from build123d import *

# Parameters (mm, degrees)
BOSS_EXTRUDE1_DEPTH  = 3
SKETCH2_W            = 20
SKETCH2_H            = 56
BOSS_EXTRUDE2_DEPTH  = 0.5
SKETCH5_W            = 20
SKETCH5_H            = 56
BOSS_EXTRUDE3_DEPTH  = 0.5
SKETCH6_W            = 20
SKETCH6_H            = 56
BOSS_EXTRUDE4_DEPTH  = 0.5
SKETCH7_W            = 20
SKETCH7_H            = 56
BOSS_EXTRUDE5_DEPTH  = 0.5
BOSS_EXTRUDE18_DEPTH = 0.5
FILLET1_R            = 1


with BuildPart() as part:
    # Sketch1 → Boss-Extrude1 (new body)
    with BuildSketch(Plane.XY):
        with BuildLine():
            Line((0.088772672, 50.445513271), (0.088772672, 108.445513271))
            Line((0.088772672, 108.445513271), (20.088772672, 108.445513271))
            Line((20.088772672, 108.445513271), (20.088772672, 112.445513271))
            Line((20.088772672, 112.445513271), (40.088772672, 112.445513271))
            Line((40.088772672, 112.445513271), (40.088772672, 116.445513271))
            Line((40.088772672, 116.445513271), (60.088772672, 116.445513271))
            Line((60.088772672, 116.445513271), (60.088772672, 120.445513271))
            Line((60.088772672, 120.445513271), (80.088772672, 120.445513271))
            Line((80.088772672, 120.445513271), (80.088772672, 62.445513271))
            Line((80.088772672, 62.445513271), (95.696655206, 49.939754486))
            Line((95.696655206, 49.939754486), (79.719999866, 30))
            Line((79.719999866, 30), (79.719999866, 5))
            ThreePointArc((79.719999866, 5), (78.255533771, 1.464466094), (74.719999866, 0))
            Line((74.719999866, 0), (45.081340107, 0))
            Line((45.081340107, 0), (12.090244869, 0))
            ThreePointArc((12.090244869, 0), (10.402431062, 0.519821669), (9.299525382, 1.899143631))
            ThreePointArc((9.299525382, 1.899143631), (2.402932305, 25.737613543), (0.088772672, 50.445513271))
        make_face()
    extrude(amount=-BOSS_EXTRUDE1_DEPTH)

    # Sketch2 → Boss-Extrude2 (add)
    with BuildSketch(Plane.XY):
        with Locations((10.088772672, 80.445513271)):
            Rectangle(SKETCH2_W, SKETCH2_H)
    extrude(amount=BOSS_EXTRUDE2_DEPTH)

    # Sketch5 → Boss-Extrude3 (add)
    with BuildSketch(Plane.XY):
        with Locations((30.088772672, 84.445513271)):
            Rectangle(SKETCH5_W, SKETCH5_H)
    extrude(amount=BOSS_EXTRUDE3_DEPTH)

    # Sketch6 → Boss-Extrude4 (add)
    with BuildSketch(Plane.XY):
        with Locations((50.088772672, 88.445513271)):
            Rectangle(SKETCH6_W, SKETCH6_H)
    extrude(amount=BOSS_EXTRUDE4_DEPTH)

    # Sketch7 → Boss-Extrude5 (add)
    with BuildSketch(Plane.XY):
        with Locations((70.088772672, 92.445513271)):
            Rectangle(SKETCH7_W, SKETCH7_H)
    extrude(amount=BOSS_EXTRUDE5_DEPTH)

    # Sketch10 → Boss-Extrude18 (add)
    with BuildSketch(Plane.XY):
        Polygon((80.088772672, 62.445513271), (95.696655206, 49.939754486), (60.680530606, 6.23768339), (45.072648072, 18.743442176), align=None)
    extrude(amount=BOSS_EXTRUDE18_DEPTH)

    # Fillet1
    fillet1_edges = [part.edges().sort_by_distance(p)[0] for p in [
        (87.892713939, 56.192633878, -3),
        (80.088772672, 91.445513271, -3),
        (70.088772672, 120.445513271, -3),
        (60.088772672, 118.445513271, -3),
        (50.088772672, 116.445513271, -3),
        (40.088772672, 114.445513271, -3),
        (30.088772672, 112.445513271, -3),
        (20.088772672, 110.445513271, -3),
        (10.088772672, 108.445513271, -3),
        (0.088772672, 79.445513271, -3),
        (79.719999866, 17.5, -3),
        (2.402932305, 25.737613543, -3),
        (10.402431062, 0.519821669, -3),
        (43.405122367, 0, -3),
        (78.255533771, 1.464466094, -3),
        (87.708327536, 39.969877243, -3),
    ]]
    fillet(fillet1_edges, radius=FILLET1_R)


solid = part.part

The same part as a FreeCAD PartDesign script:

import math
import FreeCAD as App
import Part
import Sketcher
from FreeCAD import Vector


def edges_at(feature, points):
    """Names of the edges that pass closest to the given points."""
    edges = feature.Shape.Edges
    near = lambda p: min(range(len(edges)), key=lambda i: edges[i].distToShape(Part.Vertex(*p))[0])
    return sorted({f"Edge{near(p) + 1}" for p in points})

doc = App.newDocument("Part")
body = doc.addObject("PartDesign::Body", "Body")

sketch1 = body.newObject("Sketcher::SketchObject", "Sketch")
sketch1.AttachmentSupport = (doc.getObject("XY_Plane"), [""])
sketch1.MapMode = "FlatFace"
sketch1.addGeometry(Part.LineSegment(Vector(0.1, 108.4, 0), Vector(0.1, 50.4, 0)), False)
sketch1.addGeometry(Part.ArcOfCircle(Part.Circle(Vector(132.1, 50.3, 0), Vector(0, 0, 1), 132), math.radians(180), math.radians(202)), False)
sketch1.addGeometry(Part.ArcOfCircle(Part.Circle(Vector(12.1, 3, 0), Vector(0, 0, 1), 3), math.radians(-158), math.radians(-90)), False)
sketch1.addGeometry(Part.LineSegment(Vector(12.1, 0, 0), Vector(74.7, 0, 0)), False)
sketch1.addGeometry(Part.ArcOfCircle(Part.Circle(Vector(74.7, 5, 0), Vector(0, 0, 1), 5), math.radians(-90), math.radians(0)), False)
sketch1.addGeometry(Part.LineSegment(Vector(79.7, 5, 0), Vector(79.7, 30, 0)), False)
sketch1.addGeometry(Part.LineSegment(Vector(79.7, 30, 0), Vector(95.7, 49.9, 0)), False)
sketch1.addGeometry(Part.LineSegment(Vector(95.7, 49.9, 0), Vector(80.1, 62.4, 0)), False)
sketch1.addGeometry(Part.LineSegment(Vector(80.1, 62.4, 0), Vector(80.1, 120.4, 0)), False)
sketch1.addGeometry(Part.LineSegment(Vector(80.1, 120.4, 0), Vector(60.1, 120.4, 0)), False)
sketch1.addGeometry(Part.LineSegment(Vector(60.1, 120.4, 0), Vector(60.1, 116.4, 0)), False)
sketch1.addGeometry(Part.LineSegment(Vector(60.1, 116.4, 0), Vector(40.1, 116.4, 0)), False)
sketch1.addGeometry(Part.LineSegment(Vector(40.1, 116.4, 0), Vector(40.1, 112.4, 0)), False)
sketch1.addGeometry(Part.LineSegment(Vector(40.1, 112.4, 0), Vector(20.1, 112.4, 0)), False)
sketch1.addGeometry(Part.LineSegment(Vector(20.1, 112.4, 0), Vector(20.1, 108.4, 0)), False)
sketch1.addGeometry(Part.LineSegment(Vector(20.1, 108.4, 0), Vector(0.1, 108.4, 0)), False)
sketch1.addConstraint(Sketcher.Constraint("Coincident", 0, 2, 1, 1))
sketch1.addConstraint(Sketcher.Constraint("Tangent", 1, 2, 2, 1))
sketch1.addConstraint(Sketcher.Constraint("Tangent", 2, 2, 3, 1))
sketch1.addConstraint(Sketcher.Constraint("Tangent", 3, 2, 4, 1))
sketch1.addConstraint(Sketcher.Constraint("Tangent", 4, 2, 5, 1))
sketch1.addConstraint(Sketcher.Constraint("Coincident", 5, 2, 6, 1))
sketch1.addConstraint(Sketcher.Constraint("Coincident", 6, 2, 7, 1))
sketch1.addConstraint(Sketcher.Constraint("Coincident", 7, 2, 8, 1))
sketch1.addConstraint(Sketcher.Constraint("Coincident", 8, 2, 9, 1))
sketch1.addConstraint(Sketcher.Constraint("Coincident", 9, 2, 10, 1))
sketch1.addConstraint(Sketcher.Constraint("Coincident", 10, 2, 11, 1))
sketch1.addConstraint(Sketcher.Constraint("Coincident", 11, 2, 12, 1))
sketch1.addConstraint(Sketcher.Constraint("Coincident", 12, 2, 13, 1))
sketch1.addConstraint(Sketcher.Constraint("Coincident", 13, 2, 14, 1))
sketch1.addConstraint(Sketcher.Constraint("Coincident", 14, 2, 15, 1))
sketch1.addConstraint(Sketcher.Constraint("Coincident", 15, 2, 0, 1))
sketch1.addConstraint(Sketcher.Constraint("Vertical", 0))
sketch1.addConstraint(Sketcher.Constraint("Horizontal", 3))
sketch1.addConstraint(Sketcher.Constraint("Vertical", 5))
sketch1.addConstraint(Sketcher.Constraint("Vertical", 8))
sketch1.addConstraint(Sketcher.Constraint("Horizontal", 9))
sketch1.addConstraint(Sketcher.Constraint("Vertical", 10))
sketch1.addConstraint(Sketcher.Constraint("Horizontal", 11))
sketch1.addConstraint(Sketcher.Constraint("Vertical", 12))
sketch1.addConstraint(Sketcher.Constraint("Horizontal", 13))
sketch1.addConstraint(Sketcher.Constraint("Vertical", 14))
sketch1.addConstraint(Sketcher.Constraint("Horizontal", 15))
sketch1.addConstraint(Sketcher.Constraint("PointOnObject", 2, 2, -1))
sketch1.addConstraint(Sketcher.Constraint("Perpendicular", 6, 7))
sketch1.addConstraint(Sketcher.Constraint("Equal", 9, 11))
sketch1.addConstraint(Sketcher.Constraint("Equal", 11, 13))
sketch1.addConstraint(Sketcher.Constraint("Equal", 13, 15))
sketch1.addConstraint(Sketcher.Constraint("Equal", 0, 8))
sketch1.addConstraint(Sketcher.Constraint("Equal", 10, 12))
sketch1.addConstraint(Sketcher.Constraint("Equal", 12, 14))
sketch1.addConstraint(Sketcher.Constraint("Radius", 2, 3.0))
sketch1.addConstraint(Sketcher.Constraint("Radius", 4, 5.0))
sketch1.addConstraint(Sketcher.Constraint("DistanceX", 9, 2, 9, 1, 20.0))
sketch1.addConstraint(Sketcher.Constraint("DistanceY", 0, 2, 0, 1, 58.0))
sketch1.addConstraint(Sketcher.Constraint("DistanceY", 5, 1, 5, 2, 25.0))
sketch1.addConstraint(Sketcher.Constraint("DistanceY", 10, 2, 10, 1, 4.0))
sketch1.addConstraint(Sketcher.Constraint("Distance", 7, 20.0))
sketch1.addConstraint(Sketcher.Constraint("DistanceX", -1, 1, 4, 3, 74.72))
sketch1.addConstraint(Sketcher.Constraint("Radius", 1, 132.035047))
sketch1.addConstraint(Sketcher.Constraint("DistanceX", 3, 1, 3, 2, 62.629755))
sketch1.addConstraint(Sketcher.Constraint("DistanceX", 2, 3, 1, 3, 120.03354))
sketch1.addConstraint(Sketcher.Constraint("DistanceY", 1, 3, 0, 2, 0.095829))
pad1 = body.newObject("PartDesign::Pad", "Pad")
pad1.Profile = sketch1
pad1.Length = 3
pad1.Reversed = True

sketch2 = body.newObject("Sketcher::SketchObject", "Sketch001")
sketch2.AttachmentSupport = (doc.getObject("XY_Plane"), [""])
sketch2.MapMode = "FlatFace"
sketch2.addGeometry(Part.LineSegment(Vector(0, 108, 0), Vector(0, 52, 0)), False)
sketch2.addGeometry(Part.LineSegment(Vector(0, 52, 0), Vector(20, 52, 0)), False)
sketch2.addGeometry(Part.LineSegment(Vector(20, 52, 0), Vector(20, 108, 0)), False)
sketch2.addGeometry(Part.LineSegment(Vector(20, 108, 0), Vector(0, 108, 0)), False)
sketch2.addConstraint(Sketcher.Constraint("Coincident", 0, 2, 1, 1))
sketch2.addConstraint(Sketcher.Constraint("Coincident", 1, 2, 2, 1))
sketch2.addConstraint(Sketcher.Constraint("Coincident", 2, 2, 3, 1))
sketch2.addConstraint(Sketcher.Constraint("Coincident", 3, 2, 0, 1))
sketch2.addConstraint(Sketcher.Constraint("Vertical", 0))
sketch2.addConstraint(Sketcher.Constraint("Horizontal", 1))
sketch2.addConstraint(Sketcher.Constraint("Vertical", 2))
sketch2.addConstraint(Sketcher.Constraint("Horizontal", 3))
sketch2.addConstraint(Sketcher.Constraint("DistanceX", 1, 1, 1, 2, 20.0))
sketch2.addConstraint(Sketcher.Constraint("DistanceY", 0, 2, 0, 1, 56.0))
sketch2.addConstraint(Sketcher.Constraint("DistanceX", -1, 1, 0, 2, 0.088773))
sketch2.addConstraint(Sketcher.Constraint("DistanceY", -1, 1, 0, 2, 52.445513))
pad2 = body.newObject("PartDesign::Pad", "Pad001")
pad2.Profile = sketch2
pad2.Length = 0.5

sketch3 = body.newObject("Sketcher::SketchObject", "Sketch002")
sketch3.AttachmentSupport = (doc.getObject("XY_Plane"), [""])
sketch3.MapMode = "FlatFace"
sketch3.addGeometry(Part.LineSegment(Vector(20, 112, 0), Vector(20, 56, 0)), False)
sketch3.addGeometry(Part.LineSegment(Vector(20, 56, 0), Vector(40, 56, 0)), False)
sketch3.addGeometry(Part.LineSegment(Vector(40, 56, 0), Vector(40, 112, 0)), False)
sketch3.addGeometry(Part.LineSegment(Vector(40, 112, 0), Vector(20, 112, 0)), False)
sketch3.addConstraint(Sketcher.Constraint("Coincident", 0, 2, 1, 1))
sketch3.addConstraint(Sketcher.Constraint("Coincident", 1, 2, 2, 1))
sketch3.addConstraint(Sketcher.Constraint("Coincident", 2, 2, 3, 1))
sketch3.addConstraint(Sketcher.Constraint("Coincident", 3, 2, 0, 1))
sketch3.addConstraint(Sketcher.Constraint("Vertical", 0))
sketch3.addConstraint(Sketcher.Constraint("Horizontal", 1))
sketch3.addConstraint(Sketcher.Constraint("Vertical", 2))
sketch3.addConstraint(Sketcher.Constraint("Horizontal", 3))
sketch3.addConstraint(Sketcher.Constraint("DistanceX", 1, 1, 1, 2, 20.0))
sketch3.addConstraint(Sketcher.Constraint("DistanceY", 0, 2, 0, 1, 56.0))
sketch3.addConstraint(Sketcher.Constraint("DistanceX", -1, 1, 0, 2, 20.088773))
sketch3.addConstraint(Sketcher.Constraint("DistanceY", -1, 1, 0, 2, 56.445513))
pad3 = body.newObject("PartDesign::Pad", "Pad002")
pad3.Profile = sketch3
pad3.Length = 0.5

sketch4 = body.newObject("Sketcher::SketchObject", "Sketch003")
sketch4.AttachmentSupport = (doc.getObject("XY_Plane"), [""])
sketch4.MapMode = "FlatFace"
sketch4.addGeometry(Part.LineSegment(Vector(40, 116, 0), Vector(40, 60, 0)), False)
sketch4.addGeometry(Part.LineSegment(Vector(40, 60, 0), Vector(60, 60, 0)), False)
sketch4.addGeometry(Part.LineSegment(Vector(60, 60, 0), Vector(60, 116, 0)), False)
sketch4.addGeometry(Part.LineSegment(Vector(60, 116, 0), Vector(40, 116, 0)), False)
sketch4.addConstraint(Sketcher.Constraint("Coincident", 0, 2, 1, 1))
sketch4.addConstraint(Sketcher.Constraint("Coincident", 1, 2, 2, 1))
sketch4.addConstraint(Sketcher.Constraint("Coincident", 2, 2, 3, 1))
sketch4.addConstraint(Sketcher.Constraint("Coincident", 3, 2, 0, 1))
sketch4.addConstraint(Sketcher.Constraint("Vertical", 0))
sketch4.addConstraint(Sketcher.Constraint("Horizontal", 1))
sketch4.addConstraint(Sketcher.Constraint("Vertical", 2))
sketch4.addConstraint(Sketcher.Constraint("Horizontal", 3))
sketch4.addConstraint(Sketcher.Constraint("DistanceX", 1, 1, 1, 2, 20.0))
sketch4.addConstraint(Sketcher.Constraint("DistanceY", 0, 2, 0, 1, 56.0))
sketch4.addConstraint(Sketcher.Constraint("DistanceX", -1, 1, 0, 2, 40.088773))
sketch4.addConstraint(Sketcher.Constraint("DistanceY", -1, 1, 0, 2, 60.445513))
pad4 = body.newObject("PartDesign::Pad", "Pad003")
pad4.Profile = sketch4
pad4.Length = 0.5

sketch5 = body.newObject("Sketcher::SketchObject", "Sketch004")
sketch5.AttachmentSupport = (doc.getObject("XY_Plane"), [""])
sketch5.MapMode = "FlatFace"
sketch5.addGeometry(Part.LineSegment(Vector(60, 120, 0), Vector(60, 64, 0)), False)
sketch5.addGeometry(Part.LineSegment(Vector(60, 64, 0), Vector(80, 64, 0)), False)
sketch5.addGeometry(Part.LineSegment(Vector(80, 64, 0), Vector(80, 120, 0)), False)
sketch5.addGeometry(Part.LineSegment(Vector(80, 120, 0), Vector(60, 120, 0)), False)
sketch5.addConstraint(Sketcher.Constraint("Coincident", 0, 2, 1, 1))
sketch5.addConstraint(Sketcher.Constraint("Coincident", 1, 2, 2, 1))
sketch5.addConstraint(Sketcher.Constraint("Coincident", 2, 2, 3, 1))
sketch5.addConstraint(Sketcher.Constraint("Coincident", 3, 2, 0, 1))
sketch5.addConstraint(Sketcher.Constraint("Vertical", 0))
sketch5.addConstraint(Sketcher.Constraint("Horizontal", 1))
sketch5.addConstraint(Sketcher.Constraint("Vertical", 2))
sketch5.addConstraint(Sketcher.Constraint("Horizontal", 3))
sketch5.addConstraint(Sketcher.Constraint("DistanceX", 1, 1, 1, 2, 20.0))
sketch5.addConstraint(Sketcher.Constraint("DistanceY", 0, 2, 0, 1, 56.0))
sketch5.addConstraint(Sketcher.Constraint("DistanceX", -1, 1, 0, 2, 60.088773))
sketch5.addConstraint(Sketcher.Constraint("DistanceY", -1, 1, 0, 2, 64.445513))
pad5 = body.newObject("PartDesign::Pad", "Pad004")
pad5.Profile = sketch5
pad5.Length = 0.5

sketch6 = body.newObject("Sketcher::SketchObject", "Sketch005")
sketch6.AttachmentSupport = (doc.getObject("XY_Plane"), [""])
sketch6.MapMode = "FlatFace"
sketch6.addGeometry(Part.LineSegment(Vector(96, 50, 0), Vector(80, 62, 0)), False)
sketch6.addGeometry(Part.LineSegment(Vector(80, 62, 0), Vector(45, 19, 0)), False)
sketch6.addGeometry(Part.LineSegment(Vector(45, 19, 0), Vector(61, 6, 0)), False)
sketch6.addGeometry(Part.LineSegment(Vector(61, 6, 0), Vector(96, 50, 0)), False)
sketch6.addConstraint(Sketcher.Constraint("Coincident", 0, 2, 1, 1))
sketch6.addConstraint(Sketcher.Constraint("Coincident", 1, 2, 2, 1))
sketch6.addConstraint(Sketcher.Constraint("Coincident", 2, 2, 3, 1))
sketch6.addConstraint(Sketcher.Constraint("Coincident", 3, 2, 0, 1))
sketch6.addConstraint(Sketcher.Constraint("Perpendicular", 0, 1))
sketch6.addConstraint(Sketcher.Constraint("Perpendicular", 1, 2))
sketch6.addConstraint(Sketcher.Constraint("Perpendicular", 2, 3))
sketch6.addConstraint(Sketcher.Constraint("Distance", 0, 20.0))
sketch6.addConstraint(Sketcher.Constraint("Distance", 1, 56.0))
sketch6.addConstraint(Sketcher.Constraint("DistanceX", -1, 1, 1, 2, 45.072648))
sketch6.addConstraint(Sketcher.Constraint("DistanceX", -1, 1, 2, 2, 60.680531))
sketch6.addConstraint(Sketcher.Constraint("DistanceY", -1, 1, 0, 2, 62.445513))
pad6 = body.newObject("PartDesign::Pad", "Pad005")
pad6.Profile = sketch6
pad6.Length = 0.5
doc.recompute()

fillet = body.newObject("PartDesign::Fillet", "Fillet")
fillet.Base = (pad6, edges_at(pad6, [
    (87.893, 56.193, -3),
    (80.089, 91.446, -3),
    (70.089, 120.446, -3),
    (60.089, 118.446, -3),
    (50.089, 116.446, -3),
    (40.089, 114.446, -3),
    (30.089, 112.446, -3),
    (20.089, 110.446, -3),
    (10.089, 108.446, -3),
    (0.089, 79.446, -3),
    (79.72, 17.5, -3),
    (2.403, 25.738, -3),
    (10.402, 0.52, -3),
    (43.405, 0, -3),
    (78.256, 1.464, -3),
    (87.708, 39.97, -3),
]))
fillet.Radius = 1

doc.recompute()
